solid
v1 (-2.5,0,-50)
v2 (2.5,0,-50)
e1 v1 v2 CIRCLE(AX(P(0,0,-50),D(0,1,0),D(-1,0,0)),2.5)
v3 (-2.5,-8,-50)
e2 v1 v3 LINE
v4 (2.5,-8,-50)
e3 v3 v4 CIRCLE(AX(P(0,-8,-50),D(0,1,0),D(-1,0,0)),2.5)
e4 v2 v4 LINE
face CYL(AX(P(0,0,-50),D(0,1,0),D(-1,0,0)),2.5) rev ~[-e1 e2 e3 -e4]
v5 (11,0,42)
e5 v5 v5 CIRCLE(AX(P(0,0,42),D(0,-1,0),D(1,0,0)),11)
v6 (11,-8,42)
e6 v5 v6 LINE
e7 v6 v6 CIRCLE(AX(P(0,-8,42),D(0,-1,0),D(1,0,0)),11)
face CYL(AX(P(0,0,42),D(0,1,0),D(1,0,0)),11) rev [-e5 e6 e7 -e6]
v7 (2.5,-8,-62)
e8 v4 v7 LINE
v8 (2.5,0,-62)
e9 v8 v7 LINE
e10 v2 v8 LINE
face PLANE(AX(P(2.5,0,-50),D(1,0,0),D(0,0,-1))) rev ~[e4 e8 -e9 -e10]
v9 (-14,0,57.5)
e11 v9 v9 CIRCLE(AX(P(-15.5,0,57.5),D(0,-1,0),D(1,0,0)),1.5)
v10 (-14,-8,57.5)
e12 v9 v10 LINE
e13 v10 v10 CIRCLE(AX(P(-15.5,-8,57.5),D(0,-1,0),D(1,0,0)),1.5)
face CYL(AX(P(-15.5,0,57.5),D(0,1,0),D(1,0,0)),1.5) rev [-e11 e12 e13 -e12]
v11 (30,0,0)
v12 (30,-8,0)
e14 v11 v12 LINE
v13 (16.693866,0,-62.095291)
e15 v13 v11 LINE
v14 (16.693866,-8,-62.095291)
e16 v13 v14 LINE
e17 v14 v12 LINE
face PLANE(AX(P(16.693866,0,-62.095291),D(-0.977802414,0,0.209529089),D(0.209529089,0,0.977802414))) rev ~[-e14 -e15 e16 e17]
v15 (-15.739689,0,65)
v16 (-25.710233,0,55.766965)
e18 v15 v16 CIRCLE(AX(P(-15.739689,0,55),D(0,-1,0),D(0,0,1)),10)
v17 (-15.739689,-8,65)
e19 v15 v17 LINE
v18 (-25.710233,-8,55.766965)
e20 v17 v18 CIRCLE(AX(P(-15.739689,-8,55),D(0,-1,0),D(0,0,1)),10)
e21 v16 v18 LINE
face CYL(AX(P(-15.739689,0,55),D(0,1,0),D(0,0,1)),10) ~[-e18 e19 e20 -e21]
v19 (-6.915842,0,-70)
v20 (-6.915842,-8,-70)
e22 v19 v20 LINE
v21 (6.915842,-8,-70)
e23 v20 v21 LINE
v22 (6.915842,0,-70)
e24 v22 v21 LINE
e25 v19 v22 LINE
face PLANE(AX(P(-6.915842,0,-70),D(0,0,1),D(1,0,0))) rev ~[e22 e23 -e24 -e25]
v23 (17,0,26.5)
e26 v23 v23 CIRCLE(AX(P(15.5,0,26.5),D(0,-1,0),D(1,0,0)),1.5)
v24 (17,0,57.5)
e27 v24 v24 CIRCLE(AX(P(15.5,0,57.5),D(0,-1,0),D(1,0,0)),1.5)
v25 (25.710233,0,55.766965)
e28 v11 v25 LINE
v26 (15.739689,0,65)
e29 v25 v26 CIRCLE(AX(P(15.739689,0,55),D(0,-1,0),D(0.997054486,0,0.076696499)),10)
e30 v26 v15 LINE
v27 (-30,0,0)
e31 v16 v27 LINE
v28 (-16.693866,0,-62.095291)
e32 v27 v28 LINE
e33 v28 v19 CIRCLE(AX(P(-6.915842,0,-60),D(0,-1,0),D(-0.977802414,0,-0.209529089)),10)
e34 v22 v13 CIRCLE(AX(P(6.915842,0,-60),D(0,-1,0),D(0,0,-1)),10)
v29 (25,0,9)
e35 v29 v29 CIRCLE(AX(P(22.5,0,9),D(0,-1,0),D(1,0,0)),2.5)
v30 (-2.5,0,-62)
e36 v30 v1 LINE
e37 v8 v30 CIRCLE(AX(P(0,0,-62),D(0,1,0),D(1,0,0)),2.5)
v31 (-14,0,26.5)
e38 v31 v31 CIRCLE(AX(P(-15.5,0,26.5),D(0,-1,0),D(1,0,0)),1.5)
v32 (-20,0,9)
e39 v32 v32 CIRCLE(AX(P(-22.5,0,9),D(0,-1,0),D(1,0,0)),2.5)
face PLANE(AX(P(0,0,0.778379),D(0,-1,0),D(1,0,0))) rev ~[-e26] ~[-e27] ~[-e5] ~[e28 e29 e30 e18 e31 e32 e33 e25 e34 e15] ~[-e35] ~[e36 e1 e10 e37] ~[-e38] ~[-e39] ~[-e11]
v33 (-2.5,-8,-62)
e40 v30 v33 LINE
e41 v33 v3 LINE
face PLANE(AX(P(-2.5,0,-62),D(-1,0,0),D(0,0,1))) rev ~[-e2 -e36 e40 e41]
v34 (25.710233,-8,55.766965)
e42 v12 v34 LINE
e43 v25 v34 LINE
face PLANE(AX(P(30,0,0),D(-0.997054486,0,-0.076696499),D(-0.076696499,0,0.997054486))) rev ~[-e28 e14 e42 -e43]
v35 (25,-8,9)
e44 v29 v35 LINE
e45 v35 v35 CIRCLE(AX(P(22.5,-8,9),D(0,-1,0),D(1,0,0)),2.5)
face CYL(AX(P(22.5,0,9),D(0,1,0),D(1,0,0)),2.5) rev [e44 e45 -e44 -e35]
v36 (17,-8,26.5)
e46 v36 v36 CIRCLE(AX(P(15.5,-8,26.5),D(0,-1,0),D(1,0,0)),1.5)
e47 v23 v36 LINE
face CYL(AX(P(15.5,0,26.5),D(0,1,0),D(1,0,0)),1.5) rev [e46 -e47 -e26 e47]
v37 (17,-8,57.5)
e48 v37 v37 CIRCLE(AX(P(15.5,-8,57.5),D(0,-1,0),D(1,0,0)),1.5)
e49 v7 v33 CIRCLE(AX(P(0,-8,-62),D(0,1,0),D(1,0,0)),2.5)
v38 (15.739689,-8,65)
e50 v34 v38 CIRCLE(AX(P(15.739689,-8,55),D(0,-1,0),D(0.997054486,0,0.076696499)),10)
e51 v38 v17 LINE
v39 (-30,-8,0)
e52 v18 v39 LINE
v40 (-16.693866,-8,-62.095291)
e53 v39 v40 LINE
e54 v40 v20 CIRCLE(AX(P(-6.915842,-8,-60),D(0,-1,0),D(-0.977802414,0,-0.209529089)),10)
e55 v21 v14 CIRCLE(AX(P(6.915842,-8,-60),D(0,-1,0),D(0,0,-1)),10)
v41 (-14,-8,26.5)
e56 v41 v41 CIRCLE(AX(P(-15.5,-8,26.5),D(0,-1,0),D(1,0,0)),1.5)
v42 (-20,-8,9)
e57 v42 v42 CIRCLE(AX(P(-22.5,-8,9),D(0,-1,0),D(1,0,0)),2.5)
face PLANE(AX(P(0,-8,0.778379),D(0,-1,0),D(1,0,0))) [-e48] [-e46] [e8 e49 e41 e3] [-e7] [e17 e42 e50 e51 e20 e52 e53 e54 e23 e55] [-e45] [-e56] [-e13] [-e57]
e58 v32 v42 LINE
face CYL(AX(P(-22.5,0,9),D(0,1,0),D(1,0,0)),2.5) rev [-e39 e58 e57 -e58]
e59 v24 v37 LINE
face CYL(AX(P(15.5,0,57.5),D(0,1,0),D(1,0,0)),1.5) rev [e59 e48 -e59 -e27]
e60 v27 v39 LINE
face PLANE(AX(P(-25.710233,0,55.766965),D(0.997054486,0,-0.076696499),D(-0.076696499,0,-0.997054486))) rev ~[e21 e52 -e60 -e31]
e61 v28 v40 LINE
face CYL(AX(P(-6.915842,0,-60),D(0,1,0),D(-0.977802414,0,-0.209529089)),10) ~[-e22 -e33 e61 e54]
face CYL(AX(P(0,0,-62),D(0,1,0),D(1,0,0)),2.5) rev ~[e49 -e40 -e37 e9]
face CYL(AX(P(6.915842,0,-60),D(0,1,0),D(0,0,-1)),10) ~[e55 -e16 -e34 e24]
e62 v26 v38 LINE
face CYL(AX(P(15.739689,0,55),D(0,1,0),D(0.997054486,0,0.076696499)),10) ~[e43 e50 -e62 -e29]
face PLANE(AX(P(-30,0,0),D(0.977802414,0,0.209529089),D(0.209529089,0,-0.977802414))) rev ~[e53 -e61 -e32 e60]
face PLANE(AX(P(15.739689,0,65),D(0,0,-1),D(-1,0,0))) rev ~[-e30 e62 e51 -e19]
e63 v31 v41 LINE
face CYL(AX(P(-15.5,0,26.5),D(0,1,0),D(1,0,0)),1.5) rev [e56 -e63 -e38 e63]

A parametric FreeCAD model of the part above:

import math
import FreeCAD as App
import Part
import Sketcher

doc = App.newDocument("Part")
params = doc.addObject("Spreadsheet::Sheet", "Params")
for row, (alias, value) in enumerate([
    ("sketch1_diameter", "5 mm"),
    ("sketch1_diameter2", "3 mm"),
    ("sketch1_diameter3", "22 mm"),
    ("sketch1_radius", "10 mm"),
    ("sketch1_height", "12 mm"),
    ("pad1_length", "8 mm"),
], start=1):
    params.set(f"A{row}", alias)
    params.set(f"B{row}", "=" + value)
    params.setAlias(f"B{row}", alias)

body = doc.addObject("PartDesign::Body", "Body")

# Sketch on XZ plane
sketch1 = body.newObject("Sketcher::SketchObject", "Sketch")
sketch1.AttachmentSupport = (doc.getObject("XZ_Plane"), [""])
sketch1.MapMode = "FlatFace"
sketch1.addGeometry(Part.LineSegment(App.Vector(15.739689, 65, 0), App.Vector(-15.739689, 65, 0)), False)
sketch1.addGeometry(Part.ArcOfCircle(Part.Circle(App.Vector(-15.739689, 55, 0), App.Vector(0, 0, 1), 10), math.radians(90), math.radians(175.601295)), False)
sketch1.addGeometry(Part.LineSegment(App.Vector(-25.710233, 55.766965, 0), App.Vector(-30, 0, 0)), False)
sketch1.addGeometry(Part.LineSegment(App.Vector(-30, 0, 0), App.Vector(-16.693866, -62.095291, 0)), False)
sketch1.addGeometry(Part.ArcOfCircle(Part.Circle(App.Vector(-6.915842, -60, 0), App.Vector(0, 0, 1), 10), math.radians(-167.905243), math.radians(-90)), False)
sketch1.addGeometry(Part.LineSegment(App.Vector(-6.915842, -70, 0), App.Vector(6.915842, -70, 0)), False)
sketch1.addGeometry(Part.ArcOfCircle(Part.Circle(App.Vector(6.915842, -60, 0), App.Vector(0, 0, 1), 10), math.radians(-90), math.radians(-12.094757)), False)
sketch1.addGeometry(Part.LineSegment(App.Vector(16.693866, -62.095291, 0), App.Vector(30, 0, 0)), False)
sketch1.addGeometry(Part.LineSegment(App.Vector(30, 0, 0), App.Vector(25.710233, 55.766965, 0)), False)
sketch1.addGeometry(Part.ArcOfCircle(Part.Circle(App.Vector(15.739689, 55, 0), App.Vector(0, 0, 1), 10), math.radians(4.398705), math.radians(90)), False)
sketch1.addGeometry(Part.ArcOfCircle(Part.Circle(App.Vector(0, -62, 0), App.Vector(0, 0, 1), 2.5), math.radians(180), math.radians(360)), False)
sketch1.addGeometry(Part.LineSegment(App.Vector(-2.5, -62, 0), App.Vector(-2.5, -50, 0)), False)
sketch1.addGeometry(Part.ArcOfCircle(Part.Circle(App.Vector(0, -50, 0), App.Vector(0, 0, 1), 2.5), math.radians(0), math.radians(180)), False)
sketch1.addGeometry(Part.LineSegment(App.Vector(2.5, -50, 0), App.Vector(2.5, -62, 0)), False)
sketch1.addGeometry(Part.Circle(App.Vector(-22.5, 9, 0), App.Vector(0, 0, 1), 2.5), False)
sketch1.addGeometry(Part.Circle(App.Vector(-15.5, 26.5, 0), App.Vector(0, 0, 1), 1.5), False)
sketch1.addGeometry(Part.Circle(App.Vector(-15.5, 57.5, 0), App.Vector(0, 0, 1), 1.5), False)
sketch1.addGeometry(Part.Circle(App.Vector(22.5, 9, 0), App.Vector(0, 0, 1), 2.5), False)
sketch1.addGeometry(Part.Circle(App.Vector(15.5, 26.5, 0), App.Vector(0, 0, 1), 1.5), False)
sketch1.addGeometry(Part.Circle(App.Vector(0, 42, 0), App.Vector(0, 0, 1), 11), False)
sketch1.addGeometry(Part.Circle(App.Vector(15.5, 57.5, 0), App.Vector(0, 0, 1), 1.5), False)
sketch1.addConstraint(Sketcher.Constraint("Tangent", 0, 2, 1, 1))
sketch1.addConstraint(Sketcher.Constraint("Tangent", 1, 2, 2, 1))
sketch1.addConstraint(Sketcher.Constraint("Coincident", 2, 2, 3, 1))
sketch1.addConstraint(Sketcher.Constraint("Tangent", 3, 2, 4, 1))
sketch1.addConstraint(Sketcher.Constraint("Tangent", 4, 2, 5, 1))
sketch1.addConstraint(Sketcher.Constraint("Tangent", 5, 2, 6, 1))
sketch1.addConstraint(Sketcher.Constraint("Tangent", 6, 2, 7, 1))
sketch1.addConstraint(Sketcher.Constraint("Coincident", 7, 2, 8, 1))
sketch1.addConstraint(Sketcher.Constraint("Tangent", 8, 2, 9, 1))
sketch1.addConstraint(Sketcher.Constraint("Tangent", 9, 2, 0, 1))
sketch1.addConstraint(Sketcher.Constraint("Tangent", 10, 1, 11, 1))
sketch1.addConstraint(Sketcher.Constraint("Tangent", 11, 2, 12, 2))
sketch1.addConstraint(Sketcher.Constraint("Tangent", 12, 1, 13, 1))
sketch1.addConstraint(Sketcher.Constraint("Tangent", 13, 2, 10, 2))
sketch1.addConstraint(Sketcher.Constraint("Horizontal", 0))
sketch1.addConstraint(Sketcher.Constraint("Horizontal", 5))
sketch1.addConstraint(Sketcher.Constraint("Vertical", 11))
sketch1.addConstraint(Sketcher.Constraint("Vertical", 13))
sketch1.addConstraint(Sketcher.Constraint("Equal", 1, 4))
sketch1.addConstraint(Sketcher.Constraint("Equal", 4, 6))
sketch1.addConstraint(Sketcher.Constraint("Equal", 6, 9))
sketch1.addConstraint(Sketcher.Constraint("Equal", 12, 14))
sketch1.addConstraint(Sketcher.Constraint("Equal", 15, 16))
sketch1.addConstraint(Sketcher.Constraint("Equal", 14, 17))
sketch1.addConstraint(Sketcher.Constraint("Equal", 16, 18))
sketch1.addConstraint(Sketcher.Constraint("Equal", 18, 20))
sketch1.addConstraint(Sketcher.Constraint("Symmetric", 2, 2, 7, 2, -1, 1))
sketch1.addConstraint(Sketcher.Constraint("Symmetric", 14, 3, 17, 3, -2))
sketch1.addConstraint(Sketcher.Constraint("Symmetric", 15, 3, 18, 3, -2))
sketch1.addConstraint(Sketcher.Constraint("Symmetric", 16, 3, 20, 3, -2))
sketch1.addConstraint(Sketcher.Constraint("Symmetric", 3, 2, 6, 2, -2))
sketch1.addConstraint(Sketcher.Constraint("PointOnObject", 10, 3, -2))
sketch1.addConstraint(Sketcher.Constraint("PointOnObject", 19, 3, -2))
sketch1.addConstraint(Sketcher.Constraint("Horizontal", 1, 2, 8, 2))
sketch1.addConstraint(Sketcher.Constraint("Vertical", 15, 3, 16, 3))
sketch1.addConstraint(Sketcher.Constraint("Diameter", 14, 5.0))
sketch1.addConstraint(Sketcher.Constraint("Diameter", 15, 3.0))
sketch1.addConstraint(Sketcher.Constraint("Diameter", 19, 22.0))
sketch1.addConstraint(Sketcher.Constraint("Radius", 1, 10.0))
sketch1.addConstraint(Sketcher.Constraint("DistanceY", 11, 1, 11, 2, 12.0))
sketch1.addConstraint(Sketcher.Constraint("DistanceY", -1, 1, 1, 3, 55.0))
sketch1.addConstraint(Sketcher.Constraint("DistanceY", 4, 3, -1, 1, 60.0))
sketch1.addConstraint(Sketcher.Constraint("DistanceY", 10, 3, -1, 1, 62.0))
sketch1.addConstraint(Sketcher.Constraint("DistanceY", -1, 1, 14, 3, 9.0))
sketch1.addConstraint(Sketcher.Constraint("DistanceY", -1, 1, 19, 3, 42.0))
sketch1.addConstraint(Sketcher.Constraint("DistanceX", 2, 2, -1, 1, 30.0))
sketch1.addConstraint(Sketcher.Constraint("DistanceX", 14, 3, 15, 3, 7.0))
sketch1.addConstraint(Sketcher.Constraint("DistanceY", 15, 3, 16, 3, 31.0))
sketch1.addConstraint(Sketcher.Constraint("DistanceX", 15, 3, 17, 3, 38.0))
sketch1.addConstraint(Sketcher.Constraint("DistanceY", -1, 1, 15, 3, 26.5))
sketch1.addConstraint(Sketcher.Constraint("DistanceX", 0, 2, 0, 1, 31.479377))
sketch1.addConstraint(Sketcher.Constraint("DistanceX", 5, 1, 5, 2, 13.831684))
sketch1.setExpression("Constraints[35]", "Params.sketch1_diameter")
sketch1.setExpression("Constraints[36]", "Params.sketch1_diameter2")
sketch1.setExpression("Constraints[37]", "Params.sketch1_diameter3")
sketch1.setExpression("Constraints[38]", "Params.sketch1_radius")
sketch1.setExpression("Constraints[39]", "Params.sketch1_height")
pad1 = body.newObject("PartDesign::Pad", "Pad")
pad1.Profile = sketch1
pad1.setExpression("Length", "Params.pad1_length")

doc.recompute()
